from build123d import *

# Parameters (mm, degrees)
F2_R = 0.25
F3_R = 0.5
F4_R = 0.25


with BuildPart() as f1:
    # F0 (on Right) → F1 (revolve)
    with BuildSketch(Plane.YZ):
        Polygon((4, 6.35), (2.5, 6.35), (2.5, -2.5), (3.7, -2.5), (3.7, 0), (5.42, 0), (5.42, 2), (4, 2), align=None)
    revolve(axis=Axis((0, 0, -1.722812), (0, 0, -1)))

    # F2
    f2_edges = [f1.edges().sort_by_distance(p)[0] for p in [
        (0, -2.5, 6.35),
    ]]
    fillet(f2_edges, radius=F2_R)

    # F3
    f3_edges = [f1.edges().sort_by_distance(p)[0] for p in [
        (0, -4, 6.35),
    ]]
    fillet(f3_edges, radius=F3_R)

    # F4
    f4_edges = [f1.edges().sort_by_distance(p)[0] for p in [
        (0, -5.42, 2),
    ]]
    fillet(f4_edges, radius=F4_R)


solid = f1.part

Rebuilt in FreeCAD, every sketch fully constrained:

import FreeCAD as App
import Part
import Sketcher

V = App.Vector
Q = App.Units.Quantity


def edges_at(feature, points):
    """Names of the edges that pass closest to the given points."""
    edges = feature.Shape.Edges
    near = lambda p: min(range(len(edges)), key=lambda i: edges[i].distToShape(Part.Vertex(*p))[0])
    return sorted({f"Edge{near(p) + 1}" for p in points})

doc = App.newDocument("Part")
params = doc.addObject("Spreadsheet::Sheet", "Params")
for row, (alias, value) in enumerate([
    ("sketch1_height", "2 mm"),
    ("sketch1_width", "1.5 mm"),
    ("sketch1_width2", "1.2 mm"),
    ("sketch1_height2", "2.5 mm"),
    ("sketch1_width3", "1.72 mm"),
    ("revolution_angle", "360 deg"),
    ("fillet_radius", "0.25 mm"),
    ("fillet2_radius", "0.5 mm"),
    ("fillet3_radius", "0.25 mm"),
], start=1):
    params.set(f"A{row}", alias)
    params.set(f"B{row}", "=" + value)
    params.setAlias(f"B{row}", alias)

body = doc.addObject("PartDesign::Body", "Body")

sketch1 = body.newObject("Sketcher::SketchObject", "Sketch")
sketch1.AttachmentSupport = (doc.getObject("YZ_Plane"), [""])
sketch1.MapMode = "FlatFace"
sketch1.addGeometry([
    Part.LineSegment(V(4, 6.3, 0), V(2.5, 6.3, 0)),
    Part.LineSegment(V(2.5, 6.3, 0), V(2.5, -2.5, 0)),
    Part.LineSegment(V(2.5, -2.5, 0), V(3.7, -2.5, 0)),
    Part.LineSegment(V(3.7, -2.5, 0), V(3.7, 0, 0)),
    Part.LineSegment(V(3.7, 0, 0), V(5.4, 0, 0)),
    Part.LineSegment(V(5.4, 0, 0), V(5.4, 2, 0)),
    Part.LineSegment(V(5.4, 2, 0), V(4, 2, 0)),
    Part.LineSegment(V(4, 2, 0), V(4, 6.3, 0)),
], False)
sketch1.addConstraint([
    Sketcher.Constraint("Coincident", 0, 2, 1, 1),
    Sketcher.Constraint("Coincident", 1, 2, 2, 1),
    Sketcher.Constraint("Coincident", 2, 2, 3, 1),
    Sketcher.Constraint("Coincident", 3, 2, 4, 1),
    Sketcher.Constraint("Coincident", 4, 2, 5, 1),
    Sketcher.Constraint("Coincident", 5, 2, 6, 1),
    Sketcher.Constraint("Coincident", 6, 2, 7, 1),
    Sketcher.Constraint("Coincident", 7, 2, 0, 1),
    Sketcher.Constraint("Horizontal", 0),
    Sketcher.Constraint("Vertical", 1),
    Sketcher.Constraint("Horizontal", 2),
    Sketcher.Constraint("Vertical", 3),
    Sketcher.Constraint("Horizontal", 4),
    Sketcher.Constraint("Vertical", 5),
    Sketcher.Constraint("Horizontal", 6),
    Sketcher.Constraint("Vertical", 7),
    Sketcher.Constraint("PointOnObject", 3, 2, -1),
    Sketcher.Constraint("DistanceY", 5, 1, 5, 2, Q("2 mm")),
    Sketcher.Constraint("DistanceX", 0, 2, 0, 1, Q("1.5 mm")),
    Sketcher.Constraint("DistanceX", 2, 1, 2, 2, Q("1.2 mm")),
    Sketcher.Constraint("DistanceY", 3, 1, 3, 2, Q("2.5 mm")),
    Sketcher.Constraint("DistanceX", -1, 1, 6, 2, Q("4 mm")),
    Sketcher.Constraint("DistanceX", 4, 1, 4, 2, Q("1.72 mm")),
    Sketcher.Constraint("DistanceY", 1, 2, 1, 1, Q("8.85 mm")),
])
sketch1.setExpression("Constraints[17]", "Params.sketch1_height")
sketch1.setExpression("Constraints[18]", "Params.sketch1_width")
sketch1.setExpression("Constraints[19]", "Params.sketch1_width2")
sketch1.setExpression("Constraints[20]", "Params.sketch1_height2")
sketch1.setExpression("Constraints[22]", "Params.sketch1_width3")
revolution = body.newObject("PartDesign::Revolution", "Revolution")
revolution.Profile = sketch1
revolution.ReferenceAxis = (sketch1, ["V_Axis"])
revolution.setExpression("Angle", "Params.revolution_angle")
doc.recompute()

fillet = body.newObject("PartDesign::Fillet", "Fillet")
fillet.Base = (revolution, edges_at(revolution, [(0, -2.5, 6.35)]))
fillet.setExpression("Radius", "Params.fillet_radius")
doc.recompute()

fillet2 = body.newObject("PartDesign::Fillet", "Fillet001")
fillet2.Base = (fillet, edges_at(fillet, [(0, -4, 6.35)]))
fillet2.setExpression("Radius", "Params.fillet2_radius")
doc.recompute()

fillet3 = body.newObject("PartDesign::Fillet", "Fillet002")
fillet3.Base = (fillet2, edges_at(fillet2, [(0, -5.42, 2)]))
fillet3.setExpression("Radius", "Params.fillet3_radius")

doc.recompute()
